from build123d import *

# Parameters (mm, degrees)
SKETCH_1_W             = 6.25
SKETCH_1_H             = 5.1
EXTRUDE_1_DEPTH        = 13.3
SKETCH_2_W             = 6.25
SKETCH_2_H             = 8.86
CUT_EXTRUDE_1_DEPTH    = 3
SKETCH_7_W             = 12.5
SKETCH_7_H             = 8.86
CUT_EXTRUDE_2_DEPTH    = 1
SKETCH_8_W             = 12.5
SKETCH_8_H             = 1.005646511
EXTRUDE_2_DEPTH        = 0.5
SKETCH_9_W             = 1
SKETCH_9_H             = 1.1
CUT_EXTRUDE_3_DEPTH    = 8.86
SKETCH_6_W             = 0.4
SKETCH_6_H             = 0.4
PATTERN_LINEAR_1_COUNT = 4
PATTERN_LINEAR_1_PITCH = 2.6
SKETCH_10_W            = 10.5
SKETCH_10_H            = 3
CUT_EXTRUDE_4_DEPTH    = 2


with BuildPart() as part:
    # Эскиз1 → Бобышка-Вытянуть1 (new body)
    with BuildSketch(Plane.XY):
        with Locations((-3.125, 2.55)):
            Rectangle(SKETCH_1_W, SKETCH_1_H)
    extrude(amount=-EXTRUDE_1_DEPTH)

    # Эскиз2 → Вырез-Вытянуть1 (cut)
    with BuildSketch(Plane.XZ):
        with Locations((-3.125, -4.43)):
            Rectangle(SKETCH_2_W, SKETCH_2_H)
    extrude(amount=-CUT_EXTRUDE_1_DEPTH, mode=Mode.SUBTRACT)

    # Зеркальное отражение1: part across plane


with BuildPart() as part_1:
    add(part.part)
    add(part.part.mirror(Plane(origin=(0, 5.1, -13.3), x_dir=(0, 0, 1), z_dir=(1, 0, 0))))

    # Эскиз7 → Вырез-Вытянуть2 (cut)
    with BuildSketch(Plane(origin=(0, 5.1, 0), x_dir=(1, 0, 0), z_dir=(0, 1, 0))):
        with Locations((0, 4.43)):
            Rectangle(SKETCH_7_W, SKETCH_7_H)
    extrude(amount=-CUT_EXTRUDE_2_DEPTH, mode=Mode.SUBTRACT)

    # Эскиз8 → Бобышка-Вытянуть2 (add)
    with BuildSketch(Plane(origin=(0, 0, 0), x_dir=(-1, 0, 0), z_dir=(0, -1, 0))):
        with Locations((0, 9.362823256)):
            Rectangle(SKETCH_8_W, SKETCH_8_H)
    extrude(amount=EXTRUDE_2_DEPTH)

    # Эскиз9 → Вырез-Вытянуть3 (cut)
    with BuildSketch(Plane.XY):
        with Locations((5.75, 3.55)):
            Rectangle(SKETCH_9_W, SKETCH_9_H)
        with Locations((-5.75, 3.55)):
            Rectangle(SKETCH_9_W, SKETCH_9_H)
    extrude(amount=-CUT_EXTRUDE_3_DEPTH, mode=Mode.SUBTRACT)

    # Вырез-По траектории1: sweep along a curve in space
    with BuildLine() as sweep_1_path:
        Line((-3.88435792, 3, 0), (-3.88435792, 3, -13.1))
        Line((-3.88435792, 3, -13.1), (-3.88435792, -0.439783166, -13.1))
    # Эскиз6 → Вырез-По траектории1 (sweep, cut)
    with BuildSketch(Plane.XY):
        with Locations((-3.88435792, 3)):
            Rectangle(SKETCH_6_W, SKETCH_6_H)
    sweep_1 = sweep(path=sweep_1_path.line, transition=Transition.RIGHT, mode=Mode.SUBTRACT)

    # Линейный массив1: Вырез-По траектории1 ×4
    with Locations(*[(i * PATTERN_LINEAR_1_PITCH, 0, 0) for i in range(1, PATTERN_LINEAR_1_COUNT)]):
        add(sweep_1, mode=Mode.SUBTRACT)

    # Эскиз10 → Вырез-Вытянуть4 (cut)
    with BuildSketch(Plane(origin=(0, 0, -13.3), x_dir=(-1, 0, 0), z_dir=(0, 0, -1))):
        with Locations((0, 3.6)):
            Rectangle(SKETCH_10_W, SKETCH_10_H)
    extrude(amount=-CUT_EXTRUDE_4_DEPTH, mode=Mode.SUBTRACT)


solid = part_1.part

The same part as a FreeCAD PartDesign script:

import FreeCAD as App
import Part
import Sketcher

doc = App.newDocument("Part")
body = doc.addObject("PartDesign::Body", "Body")

# Sketch on XY plane
sketch1 = body.newObject("Sketcher::SketchObject", "Sketch")
sketch1.AttachmentSupport = (doc.getObject("XY_Plane"), [""])
sketch1.MapMode = "FlatFace"
sketch1.addGeometry([
    Part.LineSegment(App.Vector(-6, 5, 0), App.Vector(-6, 0, 0)),
    Part.LineSegment(App.Vector(-6, 0, 0), App.Vector(0, 0, 0)),
    Part.LineSegment(App.Vector(0, 0, 0), App.Vector(0, 5, 0)),
    Part.LineSegment(App.Vector(0, 5, 0), App.Vector(-6, 5, 0)),
], False)
sketch1.addConstraint([
    Sketcher.Constraint("Coincident", 0, 2, 1, 1),
    Sketcher.Constraint("Coincident", 1, 2, 2, 1),
    Sketcher.Constraint("Coincident", 2, 2, 3, 1),
    Sketcher.Constraint("Coincident", 3, 2, 0, 1),
    Sketcher.Constraint("Vertical", 0),
    Sketcher.Constraint("Horizontal", 1),
    Sketcher.Constraint("Vertical", 2),
    Sketcher.Constraint("Horizontal", 3),
    Sketcher.Constraint("Coincident", 1, 2, -1, 1),
    Sketcher.Constraint("DistanceY", 0, 2, 0, 1, 5.1),
    Sketcher.Constraint("DistanceX", 1, 1, 1, 2, 6.25),
])
pad1 = body.newObject("PartDesign::Pad", "Pad")
pad1.Profile = sketch1
pad1.Length = 13.3
pad1.Reversed = True

# Sketch on XZ plane
sketch2 = body.newObject("Sketcher::SketchObject", "Sketch001")
sketch2.AttachmentSupport = (doc.getObject("XZ_Plane"), [""])
sketch2.MapMode = "FlatFace"
sketch2.addGeometry([
    Part.LineSegment(App.Vector(-6, 0, 0), App.Vector(-6, -9, 0)),
    Part.LineSegment(App.Vector(-6, -9, 0), App.Vector(0, -9, 0)),
    Part.LineSegment(App.Vector(0, -9, 0), App.Vector(0, 0, 0)),
    Part.LineSegment(App.Vector(0, 0, 0), App.Vector(-6, 0, 0)),
], False)
sketch2.addConstraint([
    Sketcher.Constraint("Coincident", 0, 2, 1, 1),
    Sketcher.Constraint("Coincident", 1, 2, 2, 1),
    Sketcher.Constraint("Coincident", 2, 2, 3, 1),
    Sketcher.Constraint("Coincident", 3, 2, 0, 1),
    Sketcher.Constraint("Vertical", 0),
    Sketcher.Constraint("Horizontal", 1),
    Sketcher.Constraint("Vertical", 2),
    Sketcher.Constraint("Horizontal", 3),
    Sketcher.Constraint("Coincident", 2, 2, -1, 1),
    Sketcher.Constraint("DistanceX", 1, 1, 1, 2, 6.25),
    Sketcher.Constraint("DistanceY", 0, 2, 0, 1, 8.86),
])
pocket1 = body.newObject("PartDesign::Pocket", "Pocket")
pocket1.Profile = sketch2
pocket1.Length = 3
body2 = doc.addObject("PartDesign::Body", "Body001")
doc.recompute()

body2.BaseFeature = body
doc.recompute()

mirroring = doc.addObject("Part::Mirroring", "Mirroring")
mirroring.Source = body
mirroring.Base = App.Vector(0, 5.1, -13.3)
mirroring.Normal = App.Vector(1, 0, 0)
body3 = doc.addObject("PartDesign::Body", "Body002")
body3.BaseFeature = mirroring
boolean = body2.newObject("PartDesign::Boolean", "Boolean")
boolean.Type = "Fuse"
boolean.addObjects([body3])
doc.recompute()

# Sketch on XZ plane
sketch3 = body2.newObject("Sketcher::SketchObject", "Sketch002")
sketch3.AttachmentSupport = (doc.getObject("XZ_Plane001"), [""])
sketch3.MapMode = "FlatFace"
sketch3.AttachmentOffset = App.Placement(App.Vector(0, 0, -5.1), App.Rotation())
sketch3.addGeometry([
    Part.LineSegment(App.Vector(-6, -9, 0), App.Vector(-6, 0, 0)),
    Part.LineSegment(App.Vector(-6, 0, 0), App.Vector(6, 0, 0)),
    Part.LineSegment(App.Vector(6, 0, 0), App.Vector(6, -9, 0)),
    Part.LineSegment(App.Vector(6, -9, 0), App.Vector(-6, -9, 0)),
], False)
sketch3.addConstraint([
    Sketcher.Constraint("Coincident", 0, 2, 1, 1),
    Sketcher.Constraint("Coincident", 1, 2, 2, 1),
    Sketcher.Constraint("Coincident", 2, 2, 3, 1),
    Sketcher.Constraint("Coincident", 3, 2, 0, 1),
    Sketcher.Constraint("Vertical", 0),
    Sketcher.Constraint("Horizontal", 1),
    Sketcher.Constraint("Vertical", 2),
    Sketcher.Constraint("Horizontal", 3),
    Sketcher.Constraint("Symmetric", 0, 2, 1, 2, -1, 1),
    Sketcher.Constraint("DistanceX", 1, 1, 1, 2, 12.5),
    Sketcher.Constraint("DistanceY", 0, 1, 0, 2, 8.86),
])
pocket2 = body2.newObject("PartDesign::Pocket", "Pocket001")
pocket2.Profile = sketch3
pocket2.Length = 1
pocket2.Reversed = True

# Sketch on XZ plane
sketch4 = body2.newObject("Sketcher::SketchObject", "Sketch003")
sketch4.AttachmentSupport = (doc.getObject("XZ_Plane001"), [""])
sketch4.MapMode = "FlatFace"
sketch4.addGeometry([
    Part.LineSegment(App.Vector(6.2, -9.9, 0), App.Vector(6.2, -8.9, 0)),
    Part.LineSegment(App.Vector(6.2, -8.9, 0), App.Vector(-6.2, -8.9, 0)),
    Part.LineSegment(App.Vector(-6.2, -8.9, 0), App.Vector(-6.2, -9.9, 0)),
    Part.LineSegment(App.Vector(-6.2, -9.9, 0), App.Vector(6.2, -9.9, 0)),
], False)
sketch4.addConstraint([
    Sketcher.Constraint("Coincident", 0, 2, 1, 1),
    Sketcher.Constraint("Coincident", 1, 2, 2, 1),
    Sketcher.Constraint("Coincident", 2, 2, 3, 1),
    Sketcher.Constraint("Coincident", 3, 2, 0, 1),
    Sketcher.Constraint("Vertical", 0),
    Sketcher.Constraint("Horizontal", 1),
    Sketcher.Constraint("Vertical", 2),
    Sketcher.Constraint("Horizontal", 3),
    Sketcher.Constraint("DistanceX", 1, 2, 1, 1, 12.5),
    Sketcher.Constraint("DistanceX", -1, 1, 0, 2, 6.25),
    Sketcher.Constraint("DistanceY", 0, 2, -1, 1, 8.86),
    Sketcher.Constraint("DistanceY", 0, 1, 0, 2, 1.005647),
])
pad2 = body2.newObject("PartDesign::Pad", "Pad001")
pad2.Profile = sketch4
pad2.Length = 0.5

# Sketch on XY plane
sketch5 = body2.newObject("Sketcher::SketchObject", "Sketch004")
sketch5.AttachmentSupport = (doc.getObject("XY_Plane001"), [""])
sketch5.MapMode = "FlatFace"
sketch5.addGeometry([
    Part.LineSegment(App.Vector(5.2, 4.1, 0), App.Vector(5.2, 3, 0)),  # 0
    Part.LineSegment(App.Vector(5.2, 3, 0), App.Vector(6.2, 3, 0)),  # 1
    Part.LineSegment(App.Vector(6.2, 3, 0), App.Vector(6.2, 4.1, 0)),  # 2
    Part.LineSegment(App.Vector(6.2, 4.1, 0), App.Vector(5.2, 4.1, 0)),  # 3
    Part.LineSegment(App.Vector(-6.2, 4.1, 0), App.Vector(-6.2, 3, 0)),  # 4
    Part.LineSegment(App.Vector(-6.2, 3, 0), App.Vector(-5.2, 3, 0)),  # 5
    Part.LineSegment(App.Vector(-5.2, 3, 0), App.Vector(-5.2, 4.1, 0)),  # 6
    Part.LineSegment(App.Vector(-5.2, 4.1, 0), App.Vector(-6.2, 4.1, 0)),  # 7
], False)
sketch5.addConstraint([
    Sketcher.Constraint("Coincident", 0, 2, 1, 1),
    Sketcher.Constraint("Coincident", 1, 2, 2, 1),
    Sketcher.Constraint("Coincident", 2, 2, 3, 1),
    Sketcher.Constraint("Coincident", 3, 2, 0, 1),
    Sketcher.Constraint("Coincident", 4, 2, 5, 1),
    Sketcher.Constraint("Coincident", 5, 2, 6, 1),
    Sketcher.Constraint("Coincident", 6, 2, 7, 1),
    Sketcher.Constraint("Coincident", 7, 2, 4, 1),
    Sketcher.Constraint("Vertical", 0),
    Sketcher.Constraint("Horizontal", 1),
    Sketcher.Constraint("Vertical", 2),
    Sketcher.Constraint("Horizontal", 3),
    Sketcher.Constraint("Vertical", 4),
    Sketcher.Constraint("Horizontal", 5),
    Sketcher.Constraint("Vertical", 6),
    Sketcher.Constraint("Horizontal", 7),
    Sketcher.Constraint("Symmetric", 1, 2, 4, 2, -2),
    Sketcher.Constraint("Symmetric", 3, 2, 6, 2, -2),
    Sketcher.Constraint("DistanceX", 1, 1, 1, 2, 1.0),
    Sketcher.Constraint("DistanceY", 0, 2, 0, 1, 1.1),
    Sketcher.Constraint("DistanceY", -1, 1, 0, 2, 3.0),
    Sketcher.Constraint("DistanceX", 4, 2, 0, 2, 11.5),
])
pocket3 = body2.newObject("PartDesign::Pocket", "Pocket002")
pocket3.Profile = sketch5
pocket3.Length = 8.86

# Sketch on XY plane
sketch6 = body2.newObject("Sketcher::SketchObject", "Sketch005")
sketch6.AttachmentSupport = (doc.getObject("XY_Plane001"), [""])
sketch6.MapMode = "FlatFace"
sketch6.addGeometry([
    Part.LineSegment(App.Vector(-4.08, 3.2, 0), App.Vector(-4.08, 2.8, 0)),
    Part.LineSegment(App.Vector(-4.08, 2.8, 0), App.Vector(-3.68, 2.8, 0)),
    Part.LineSegment(App.Vector(-3.68, 2.8, 0), App.Vector(-3.68, 3.2, 0)),
    Part.LineSegment(App.Vector(-3.68, 3.2, 0), App.Vector(-4.08, 3.2, 0)),
], False)
sketch6.addConstraint([
    Sketcher.Constraint("Coincident", 0, 2, 1, 1),
    Sketcher.Constraint("Coincident", 1, 2, 2, 1),
    Sketcher.Constraint("Coincident", 2, 2, 3, 1),
    Sketcher.Constraint("Coincident", 3, 2, 0, 1),
    Sketcher.Constraint("Vertical", 0),
    Sketcher.Constraint("Horizontal", 1),
    Sketcher.Constraint("Vertical", 2),
    Sketcher.Constraint("Horizontal", 3),
    Sketcher.Constraint("Equal", 3, 0),
    Sketcher.Constraint("DistanceX", 1, 1, 1, 2, 0.4),
    Sketcher.Constraint("DistanceY", -1, 1, 0, 2, 2.8),
    Sketcher.Constraint("DistanceX", 0, 2, -1, 1, 4.084358),
])

# Sketch on YZ plane
sketch7 = body2.newObject("Sketcher::SketchObject", "Sketch006")
sketch7.AttachmentSupport = (doc.getObject("YZ_Plane001"), [""])
sketch7.MapMode = "FlatFace"
sketch7.AttachmentOffset = App.Placement(App.Vector(0, 0, -3.884358), App.Rotation())
sketch7.addGeometry([
    Part.LineSegment(App.Vector(3, 0, 0), App.Vector(3, -13.1, 0)),
    Part.LineSegment(App.Vector(3, -13.1, 0), App.Vector(-0.4, -13.1, 0)),
], False)
sketch7.addConstraint([
    Sketcher.Constraint("Coincident", 0, 2, 1, 1),
    Sketcher.Constraint("Vertical", 0),
    Sketcher.Constraint("Horizontal", 1),
    Sketcher.Constraint("PointOnObject", 0, 1, -1),
    Sketcher.Constraint("DistanceY", 0, 2, 0, 1, 13.1),
    Sketcher.Constraint("DistanceX", -1, 1, 0, 1, 3.0),
    Sketcher.Constraint("DistanceX", 1, 2, 1, 1, 3.439783),
])
doc.recompute()

subtractivepipe = body2.newObject("PartDesign::SubtractivePipe", "SubtractivePipe")
subtractivepipe.Profile = sketch6
subtractivepipe.Spine = (sketch7, ["Edge1", "Edge2"])
subtractivepipe.Transition = "Right corner"
doc.recompute()

linearpattern = body2.newObject("PartDesign::LinearPattern", "LinearPattern")
linearpattern.Originals = [subtractivepipe]
linearpattern.Direction = (doc.getObject("X_Axis001"), [""])
linearpattern.Mode = "offset"
linearpattern.Offset = 2.6
linearpattern.Occurrences = 4
body2.Tip = linearpattern

# Sketch on XY plane
sketch8 = body2.newObject("Sketcher::SketchObject", "Sketch007")
sketch8.AttachmentSupport = (doc.getObject("XY_Plane001"), [""])
sketch8.MapMode = "FlatFace"
sketch8.AttachmentOffset = App.Placement(App.Vector(0, 0, -13.3), App.Rotation())
sketch8.addGeometry([
    Part.LineSegment(App.Vector(5.2, 5.1, 0), App.Vector(5.2, 2.1, 0)),
    Part.LineSegment(App.Vector(5.2, 2.1, 0), App.Vector(-5.2, 2.1, 0)),
    Part.LineSegment(App.Vector(-5.2, 2.1, 0), App.Vector(-5.2, 5.1, 0)),
    Part.LineSegment(App.Vector(-5.2, 5.1, 0), App.Vector(5.2, 5.1, 0)),
], False)
sketch8.addConstraint([
    Sketcher.Constraint("Coincident", 0, 2, 1, 1),
    Sketcher.Constraint("Coincident", 1, 2, 2, 1),
    Sketcher.Constraint("Coincident", 2, 2, 3, 1),
    Sketcher.Constraint("Coincident", 3, 2, 0, 1),
    Sketcher.Constraint("Vertical", 0),
    Sketcher.Constraint("Horizontal", 1),
    Sketcher.Constraint("Vertical", 2),
    Sketcher.Constraint("Horizontal", 3),
    Sketcher.Constraint("DistanceY", 0, 2, 0, 1, 3.0),
    Sketcher.Constraint("DistanceX", 1, 2, 1, 1, 10.5),
    Sketcher.Constraint("DistanceY", -1, 1, 0, 2, 2.1),
    Sketcher.Constraint("DistanceX", -1, 1, 0, 2, 5.25),
])
pocket4 = body2.newObject("PartDesign::Pocket", "Pocket003")
pocket4.Profile = sketch8
pocket4.Length = 2
pocket4.Reversed = True
mirroring.Visibility = False

doc.recompute()
